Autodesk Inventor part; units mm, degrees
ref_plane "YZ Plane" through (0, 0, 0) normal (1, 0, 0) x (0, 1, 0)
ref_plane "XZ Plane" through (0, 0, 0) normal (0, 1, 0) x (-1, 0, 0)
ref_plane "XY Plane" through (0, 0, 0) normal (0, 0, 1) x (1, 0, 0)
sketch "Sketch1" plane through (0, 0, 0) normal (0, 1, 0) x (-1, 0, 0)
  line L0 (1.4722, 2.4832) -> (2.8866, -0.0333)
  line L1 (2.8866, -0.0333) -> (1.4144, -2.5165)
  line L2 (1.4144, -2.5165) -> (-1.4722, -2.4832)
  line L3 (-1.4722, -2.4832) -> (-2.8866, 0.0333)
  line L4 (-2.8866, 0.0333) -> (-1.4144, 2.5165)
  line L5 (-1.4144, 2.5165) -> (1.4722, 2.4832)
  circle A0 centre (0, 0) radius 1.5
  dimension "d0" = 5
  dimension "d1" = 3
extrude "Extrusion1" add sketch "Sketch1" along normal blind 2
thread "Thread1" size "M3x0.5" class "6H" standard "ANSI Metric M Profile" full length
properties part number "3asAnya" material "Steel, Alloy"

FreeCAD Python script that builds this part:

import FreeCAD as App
import Part
import Sketcher
from FreeCAD import Vector
Q = App.Units.Quantity


def add_polygon(sketch, points):
    """Adds a closed chain of lines whose ends are joined by coincident constraints."""
    first, n = sketch.GeometryCount, len(points)
    for a, b in zip(points, points[1:] + points[:1]):
        sketch.addGeometry(Part.LineSegment(App.Vector(*a, 0), App.Vector(*b, 0)), False)
    for i in range(n):
        sketch.addConstraint(Sketcher.Constraint("Coincident", first + i, 2, first + (i + 1) % n, 1))

doc = App.newDocument("Part")
body = doc.addObject("PartDesign::Body", "Body")

sketch1 = body.newObject("Sketcher::SketchObject", "Sketch")
sketch1.AttachmentSupport = (doc.getObject("XZ_Plane"), [""])
sketch1.MapMode = "FlatFace"
add_polygon(sketch1, [(-2.9, 0), (-1.5, 2.5), (1.4, 2.5), (2.9, 0), (1.5, -2.5), (-1.4, -2.5)])
sketch1.addGeometry(Part.Circle(Vector(0, 0, 0), Vector(0, 0, 1), 1.5), False)
sketch1.addConstraint([
    Sketcher.Constraint("Coincident", 6, 3, -1, 1),
    Sketcher.Constraint("Symmetric", 0, 2, 3, 2, -1, 1),
    Sketcher.Constraint("Symmetric", 1, 2, 4, 2, -1, 1),
    Sketcher.Constraint("Symmetric", 2, 2, 5, 2, -1, 1),
    Sketcher.Constraint("Equal", 0, 1),
    Sketcher.Constraint("Equal", 1, 2),
    Sketcher.Constraint("Diameter", 6, 3.0),
    Sketcher.Constraint("Angle", 1, Q("0.661 deg")),
    Sketcher.Constraint("DistanceY", 3, 2, 1, 2, 4.9997),
    Sketcher.Constraint("DistanceY", 2, 2, 0, 2, 2.45),
    Sketcher.Constraint("DistanceX", 4, 2, 2, 2, 4.301),
])
pad1 = body.newObject("PartDesign::Pad", "Pad")
pad1.Profile = sketch1
pad1.Length = 2
pad1.Reversed = True

doc.recompute()
